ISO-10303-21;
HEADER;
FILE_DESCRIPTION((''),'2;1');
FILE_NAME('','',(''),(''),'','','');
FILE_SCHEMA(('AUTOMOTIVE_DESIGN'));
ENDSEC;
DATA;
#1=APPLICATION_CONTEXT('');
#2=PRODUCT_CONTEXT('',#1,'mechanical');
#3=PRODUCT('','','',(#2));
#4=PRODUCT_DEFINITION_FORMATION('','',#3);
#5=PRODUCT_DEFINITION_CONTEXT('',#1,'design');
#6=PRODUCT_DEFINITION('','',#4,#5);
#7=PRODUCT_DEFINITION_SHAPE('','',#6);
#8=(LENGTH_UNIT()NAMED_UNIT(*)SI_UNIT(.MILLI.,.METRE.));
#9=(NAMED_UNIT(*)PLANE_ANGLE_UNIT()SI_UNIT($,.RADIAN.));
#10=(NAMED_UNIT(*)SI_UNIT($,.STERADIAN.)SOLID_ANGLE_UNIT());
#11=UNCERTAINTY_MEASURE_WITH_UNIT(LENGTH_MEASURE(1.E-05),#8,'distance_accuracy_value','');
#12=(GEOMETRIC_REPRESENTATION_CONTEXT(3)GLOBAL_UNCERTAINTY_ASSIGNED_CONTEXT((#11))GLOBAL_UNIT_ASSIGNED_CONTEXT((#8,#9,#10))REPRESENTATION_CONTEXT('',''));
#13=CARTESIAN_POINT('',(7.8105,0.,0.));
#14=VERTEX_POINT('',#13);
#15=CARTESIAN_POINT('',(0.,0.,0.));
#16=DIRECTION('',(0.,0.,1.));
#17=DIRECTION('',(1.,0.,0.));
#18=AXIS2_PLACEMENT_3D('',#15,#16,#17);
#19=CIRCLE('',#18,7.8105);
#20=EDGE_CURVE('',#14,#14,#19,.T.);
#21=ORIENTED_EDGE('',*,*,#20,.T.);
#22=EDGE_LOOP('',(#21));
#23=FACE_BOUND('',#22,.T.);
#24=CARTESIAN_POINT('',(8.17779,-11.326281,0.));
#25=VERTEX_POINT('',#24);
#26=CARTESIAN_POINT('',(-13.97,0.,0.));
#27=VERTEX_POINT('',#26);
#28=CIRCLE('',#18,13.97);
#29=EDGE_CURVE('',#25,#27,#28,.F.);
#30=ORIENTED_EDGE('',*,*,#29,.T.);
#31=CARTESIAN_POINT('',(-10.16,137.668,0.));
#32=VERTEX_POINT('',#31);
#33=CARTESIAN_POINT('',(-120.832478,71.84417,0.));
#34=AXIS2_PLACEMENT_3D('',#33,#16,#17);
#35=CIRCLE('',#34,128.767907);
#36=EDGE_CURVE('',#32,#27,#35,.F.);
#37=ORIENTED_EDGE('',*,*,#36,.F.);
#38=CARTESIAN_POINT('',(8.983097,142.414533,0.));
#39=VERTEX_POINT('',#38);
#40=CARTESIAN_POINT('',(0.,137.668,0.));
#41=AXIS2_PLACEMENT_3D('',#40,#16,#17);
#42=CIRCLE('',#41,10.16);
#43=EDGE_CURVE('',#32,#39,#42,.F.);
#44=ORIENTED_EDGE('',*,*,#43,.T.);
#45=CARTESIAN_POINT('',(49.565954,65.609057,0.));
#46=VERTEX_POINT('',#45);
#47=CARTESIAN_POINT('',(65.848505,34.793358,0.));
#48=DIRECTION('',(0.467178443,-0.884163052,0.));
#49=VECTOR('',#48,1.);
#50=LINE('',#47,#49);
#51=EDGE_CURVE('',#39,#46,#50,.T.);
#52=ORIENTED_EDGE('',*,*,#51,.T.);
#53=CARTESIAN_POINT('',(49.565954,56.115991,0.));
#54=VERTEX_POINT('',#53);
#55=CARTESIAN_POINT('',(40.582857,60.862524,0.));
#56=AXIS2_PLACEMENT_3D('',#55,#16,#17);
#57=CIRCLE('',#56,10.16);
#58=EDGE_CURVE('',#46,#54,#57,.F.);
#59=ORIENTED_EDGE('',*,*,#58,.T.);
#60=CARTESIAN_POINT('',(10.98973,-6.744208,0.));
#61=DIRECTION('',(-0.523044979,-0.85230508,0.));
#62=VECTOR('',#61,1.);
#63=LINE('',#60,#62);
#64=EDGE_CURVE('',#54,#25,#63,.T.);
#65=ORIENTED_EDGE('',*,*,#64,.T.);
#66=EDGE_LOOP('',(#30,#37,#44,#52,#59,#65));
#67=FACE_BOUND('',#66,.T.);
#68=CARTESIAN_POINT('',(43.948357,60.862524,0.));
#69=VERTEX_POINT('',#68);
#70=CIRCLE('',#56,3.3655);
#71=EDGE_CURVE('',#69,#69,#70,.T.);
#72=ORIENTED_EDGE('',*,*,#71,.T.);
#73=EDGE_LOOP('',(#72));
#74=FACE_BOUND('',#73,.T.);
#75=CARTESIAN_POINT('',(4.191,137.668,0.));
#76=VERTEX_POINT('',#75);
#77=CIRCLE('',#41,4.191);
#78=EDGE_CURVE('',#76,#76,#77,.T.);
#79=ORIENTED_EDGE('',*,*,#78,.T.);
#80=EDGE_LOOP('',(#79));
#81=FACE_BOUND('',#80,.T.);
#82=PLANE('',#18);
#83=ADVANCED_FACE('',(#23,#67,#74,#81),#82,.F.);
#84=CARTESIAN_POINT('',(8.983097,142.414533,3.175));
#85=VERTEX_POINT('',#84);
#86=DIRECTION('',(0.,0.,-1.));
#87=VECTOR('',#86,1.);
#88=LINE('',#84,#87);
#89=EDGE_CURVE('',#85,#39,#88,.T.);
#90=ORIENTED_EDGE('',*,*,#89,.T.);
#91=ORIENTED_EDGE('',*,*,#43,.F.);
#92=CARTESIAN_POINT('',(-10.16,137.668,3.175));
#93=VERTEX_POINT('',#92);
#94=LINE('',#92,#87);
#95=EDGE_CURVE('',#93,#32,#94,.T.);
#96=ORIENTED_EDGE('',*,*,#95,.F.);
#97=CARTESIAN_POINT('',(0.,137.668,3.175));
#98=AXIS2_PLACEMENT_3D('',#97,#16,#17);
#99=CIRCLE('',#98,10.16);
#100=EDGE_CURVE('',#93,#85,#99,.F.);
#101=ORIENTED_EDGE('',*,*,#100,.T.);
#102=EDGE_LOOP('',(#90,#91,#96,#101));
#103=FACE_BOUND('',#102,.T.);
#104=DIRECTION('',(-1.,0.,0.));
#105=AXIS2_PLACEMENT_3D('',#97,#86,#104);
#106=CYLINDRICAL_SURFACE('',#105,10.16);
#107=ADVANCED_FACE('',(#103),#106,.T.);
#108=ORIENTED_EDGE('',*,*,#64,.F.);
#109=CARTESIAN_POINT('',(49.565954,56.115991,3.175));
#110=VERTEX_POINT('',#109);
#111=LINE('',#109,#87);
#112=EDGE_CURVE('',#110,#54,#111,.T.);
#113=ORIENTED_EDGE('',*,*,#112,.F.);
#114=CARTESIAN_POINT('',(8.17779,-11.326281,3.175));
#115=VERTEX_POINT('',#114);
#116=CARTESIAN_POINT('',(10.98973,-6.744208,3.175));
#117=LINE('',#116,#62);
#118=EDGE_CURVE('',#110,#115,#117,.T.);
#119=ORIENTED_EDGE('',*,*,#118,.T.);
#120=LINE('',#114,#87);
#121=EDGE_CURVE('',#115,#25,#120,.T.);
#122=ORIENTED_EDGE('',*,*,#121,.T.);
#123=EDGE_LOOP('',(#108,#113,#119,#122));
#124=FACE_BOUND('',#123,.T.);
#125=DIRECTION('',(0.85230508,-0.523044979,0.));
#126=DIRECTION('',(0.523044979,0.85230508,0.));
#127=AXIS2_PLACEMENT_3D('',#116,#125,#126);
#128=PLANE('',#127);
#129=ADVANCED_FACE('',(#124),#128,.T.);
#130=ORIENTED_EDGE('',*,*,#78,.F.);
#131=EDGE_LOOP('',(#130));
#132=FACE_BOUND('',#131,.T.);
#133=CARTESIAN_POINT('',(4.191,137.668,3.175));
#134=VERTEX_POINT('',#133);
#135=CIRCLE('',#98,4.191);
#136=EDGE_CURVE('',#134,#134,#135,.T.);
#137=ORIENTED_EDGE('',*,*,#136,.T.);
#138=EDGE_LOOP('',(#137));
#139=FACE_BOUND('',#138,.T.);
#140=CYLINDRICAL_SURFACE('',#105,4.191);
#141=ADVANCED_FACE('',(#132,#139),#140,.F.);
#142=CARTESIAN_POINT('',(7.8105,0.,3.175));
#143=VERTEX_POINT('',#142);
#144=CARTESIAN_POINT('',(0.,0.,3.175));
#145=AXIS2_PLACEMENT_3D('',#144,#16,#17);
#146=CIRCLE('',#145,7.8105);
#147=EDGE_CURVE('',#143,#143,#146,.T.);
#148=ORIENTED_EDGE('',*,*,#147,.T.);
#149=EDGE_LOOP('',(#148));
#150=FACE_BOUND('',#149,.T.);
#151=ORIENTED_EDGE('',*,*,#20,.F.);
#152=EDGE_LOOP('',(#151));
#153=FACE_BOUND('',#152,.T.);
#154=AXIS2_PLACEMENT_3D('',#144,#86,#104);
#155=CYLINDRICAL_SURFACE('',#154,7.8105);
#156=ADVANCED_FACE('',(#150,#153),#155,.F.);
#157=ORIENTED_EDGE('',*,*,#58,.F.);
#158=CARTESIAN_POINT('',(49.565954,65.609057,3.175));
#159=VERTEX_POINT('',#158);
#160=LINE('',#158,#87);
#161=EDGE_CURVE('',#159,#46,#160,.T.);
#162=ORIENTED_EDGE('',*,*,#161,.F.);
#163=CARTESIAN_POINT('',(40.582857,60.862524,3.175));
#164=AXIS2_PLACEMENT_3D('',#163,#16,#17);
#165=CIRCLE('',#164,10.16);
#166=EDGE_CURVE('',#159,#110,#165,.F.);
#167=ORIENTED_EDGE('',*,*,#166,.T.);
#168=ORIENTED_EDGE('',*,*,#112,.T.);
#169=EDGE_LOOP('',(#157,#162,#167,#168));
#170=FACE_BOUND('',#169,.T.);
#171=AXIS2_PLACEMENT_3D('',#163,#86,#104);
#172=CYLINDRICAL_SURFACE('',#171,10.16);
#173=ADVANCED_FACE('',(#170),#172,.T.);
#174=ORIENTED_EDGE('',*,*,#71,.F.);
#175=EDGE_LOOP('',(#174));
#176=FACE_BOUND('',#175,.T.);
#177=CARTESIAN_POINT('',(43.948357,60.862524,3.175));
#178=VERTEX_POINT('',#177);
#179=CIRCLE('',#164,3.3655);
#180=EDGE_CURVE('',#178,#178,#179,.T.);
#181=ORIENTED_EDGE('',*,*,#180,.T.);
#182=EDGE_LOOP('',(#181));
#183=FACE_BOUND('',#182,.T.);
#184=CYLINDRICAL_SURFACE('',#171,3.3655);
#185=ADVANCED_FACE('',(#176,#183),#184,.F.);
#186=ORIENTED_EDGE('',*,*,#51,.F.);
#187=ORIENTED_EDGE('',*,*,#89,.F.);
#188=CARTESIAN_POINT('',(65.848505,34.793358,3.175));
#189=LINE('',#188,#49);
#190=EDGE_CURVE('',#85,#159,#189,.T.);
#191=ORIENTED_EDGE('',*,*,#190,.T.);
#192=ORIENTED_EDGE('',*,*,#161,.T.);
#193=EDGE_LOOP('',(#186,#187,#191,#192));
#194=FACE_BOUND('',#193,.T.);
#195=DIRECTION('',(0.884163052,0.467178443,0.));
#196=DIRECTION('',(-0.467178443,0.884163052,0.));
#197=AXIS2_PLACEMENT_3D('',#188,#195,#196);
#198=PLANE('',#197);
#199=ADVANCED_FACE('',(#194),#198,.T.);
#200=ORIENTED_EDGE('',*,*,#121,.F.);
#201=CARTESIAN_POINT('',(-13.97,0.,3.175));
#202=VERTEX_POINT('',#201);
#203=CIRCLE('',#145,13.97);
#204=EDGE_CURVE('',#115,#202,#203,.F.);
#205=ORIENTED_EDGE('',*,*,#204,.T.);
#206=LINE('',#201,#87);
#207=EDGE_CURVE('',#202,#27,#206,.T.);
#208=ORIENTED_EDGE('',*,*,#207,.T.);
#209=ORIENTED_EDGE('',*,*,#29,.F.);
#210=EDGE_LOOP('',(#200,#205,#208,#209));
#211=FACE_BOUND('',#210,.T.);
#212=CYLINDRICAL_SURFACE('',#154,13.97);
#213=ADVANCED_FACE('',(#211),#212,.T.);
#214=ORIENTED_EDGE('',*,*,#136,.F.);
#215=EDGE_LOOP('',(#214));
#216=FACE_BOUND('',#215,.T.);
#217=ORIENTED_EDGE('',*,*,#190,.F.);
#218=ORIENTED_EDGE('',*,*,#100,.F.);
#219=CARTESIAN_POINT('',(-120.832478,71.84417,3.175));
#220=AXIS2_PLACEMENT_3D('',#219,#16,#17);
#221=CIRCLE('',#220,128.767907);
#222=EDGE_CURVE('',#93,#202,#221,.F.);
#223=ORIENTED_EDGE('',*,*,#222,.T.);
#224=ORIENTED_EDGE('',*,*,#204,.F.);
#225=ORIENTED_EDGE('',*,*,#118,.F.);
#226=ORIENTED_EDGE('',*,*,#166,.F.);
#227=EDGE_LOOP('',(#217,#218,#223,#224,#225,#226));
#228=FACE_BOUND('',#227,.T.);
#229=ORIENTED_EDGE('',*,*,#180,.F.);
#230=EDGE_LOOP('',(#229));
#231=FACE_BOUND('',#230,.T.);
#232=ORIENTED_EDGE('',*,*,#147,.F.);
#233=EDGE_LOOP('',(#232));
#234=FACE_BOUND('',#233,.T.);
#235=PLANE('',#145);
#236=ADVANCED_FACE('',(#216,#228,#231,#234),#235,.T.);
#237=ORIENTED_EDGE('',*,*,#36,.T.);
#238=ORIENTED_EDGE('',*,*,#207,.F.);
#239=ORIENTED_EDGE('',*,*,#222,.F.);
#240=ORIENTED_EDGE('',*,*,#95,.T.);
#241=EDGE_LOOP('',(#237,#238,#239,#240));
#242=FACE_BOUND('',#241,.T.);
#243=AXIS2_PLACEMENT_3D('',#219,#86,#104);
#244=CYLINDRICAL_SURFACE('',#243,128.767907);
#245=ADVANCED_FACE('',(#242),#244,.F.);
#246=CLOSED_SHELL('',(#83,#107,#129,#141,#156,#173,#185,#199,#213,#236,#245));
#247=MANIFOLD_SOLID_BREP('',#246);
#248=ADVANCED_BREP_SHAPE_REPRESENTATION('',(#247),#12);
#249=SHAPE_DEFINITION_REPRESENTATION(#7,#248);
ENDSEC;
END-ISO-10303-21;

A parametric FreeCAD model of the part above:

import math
import FreeCAD as App
import Part
import Sketcher
from FreeCAD import Vector
Q = App.Units.Quantity

doc = App.newDocument("Part")
body = doc.addObject("PartDesign::Body", "Body")

# Sketch on XY plane
sketch1 = body.newObject("Sketcher::SketchObject", "Sketch")
sketch1.AttachmentSupport = (doc.getObject("XY_Plane"), [""])
sketch1.MapMode = "FlatFace"
sketch1.addGeometry([
    Part.LineSegment(Vector(49.6, 65.6, 0), Vector(9, 142.4, 0)),  # 0
    Part.ArcOfCircle(Part.Circle(Vector(0, 137.7, 0), Vector(0, 0, 1), 10.2), math.radians(28), math.radians(180)),  # 1
    Part.ArcOfCircle(Part.Circle(Vector(-120.8, 71.8, 0), Vector(0, 0, 1), 128.8), math.radians(-34), math.radians(31)),  # 2
    Part.ArcOfCircle(Part.Circle(Vector(0, 0, 0), Vector(0, 0, 1), 14), math.radians(180), math.radians(306)),  # 3
    Part.LineSegment(Vector(8.2, -11.3, 0), Vector(49.6, 56.1, 0)),  # 4
    Part.ArcOfCircle(Part.Circle(Vector(40.6, 60.9, 0), Vector(0, 0, 1), 10.2), math.radians(-28), math.radians(28)),  # 5
    Part.Circle(Vector(40.6, 60.9, 0), Vector(0, 0, 1), 3.4),  # 6
    Part.Circle(Vector(0, 0, 0), Vector(0, 0, 1), 7.8),  # 7
    Part.Circle(Vector(0, 137.7, 0), Vector(0, 0, 1), 4.2),  # 8
], False)
sketch1.addConstraint([
    Sketcher.Constraint("Tangent", 0, 2, 1, 1),
    Sketcher.Constraint("Coincident", 1, 2, 2, 2),
    Sketcher.Constraint("Coincident", 2, 1, 3, 1),
    Sketcher.Constraint("Coincident", 3, 2, 4, 1),
    Sketcher.Constraint("Coincident", 4, 2, 5, 1),
    Sketcher.Constraint("Tangent", 5, 2, 0, 1),
    Sketcher.Constraint("Coincident", 3, 3, -1, 1),
    Sketcher.Constraint("Coincident", 7, 3, -1, 1),
    Sketcher.Constraint("Coincident", 6, 3, 5, 3),
    Sketcher.Constraint("Coincident", 8, 3, 1, 3),
    Sketcher.Constraint("Equal", 1, 5),
    Sketcher.Constraint("PointOnObject", 1, 3, -2),
    Sketcher.Constraint("PointOnObject", 2, 1, -1),
    Sketcher.Constraint("Horizontal", 8, 3, 1, 2),
    Sketcher.Constraint("Vertical", 4, 2, 5, 2),
    Sketcher.Constraint("Radius", 1, Q("0.4 in")),
    Sketcher.Constraint("Diameter", 8, Q("0.33 in")),
    Sketcher.Constraint("Radius", 3, Q("0.55 in")),
    Sketcher.Constraint("Diameter", 6, Q("0.265 in")),
    Sketcher.Constraint("Diameter", 7, Q("0.615 in")),
    Sketcher.Constraint("Distance", 0, Q("3.42 in")),
    Sketcher.Constraint("DistanceY", -1, 1, 1, 3, Q("5.42 in")),
    Sketcher.Constraint("Radius", 2, 128.767907),
    Sketcher.Constraint("DistanceX", -1, 1, 3, 2, 8.17779),
    Sketcher.Constraint("DistanceY", -1, 1, 4, 2, 56.115991),
])
pad1 = body.newObject("PartDesign::Pad", "Pad")
pad1.Profile = sketch1
pad1.Length = Q("0.125 in")

doc.recompute()
